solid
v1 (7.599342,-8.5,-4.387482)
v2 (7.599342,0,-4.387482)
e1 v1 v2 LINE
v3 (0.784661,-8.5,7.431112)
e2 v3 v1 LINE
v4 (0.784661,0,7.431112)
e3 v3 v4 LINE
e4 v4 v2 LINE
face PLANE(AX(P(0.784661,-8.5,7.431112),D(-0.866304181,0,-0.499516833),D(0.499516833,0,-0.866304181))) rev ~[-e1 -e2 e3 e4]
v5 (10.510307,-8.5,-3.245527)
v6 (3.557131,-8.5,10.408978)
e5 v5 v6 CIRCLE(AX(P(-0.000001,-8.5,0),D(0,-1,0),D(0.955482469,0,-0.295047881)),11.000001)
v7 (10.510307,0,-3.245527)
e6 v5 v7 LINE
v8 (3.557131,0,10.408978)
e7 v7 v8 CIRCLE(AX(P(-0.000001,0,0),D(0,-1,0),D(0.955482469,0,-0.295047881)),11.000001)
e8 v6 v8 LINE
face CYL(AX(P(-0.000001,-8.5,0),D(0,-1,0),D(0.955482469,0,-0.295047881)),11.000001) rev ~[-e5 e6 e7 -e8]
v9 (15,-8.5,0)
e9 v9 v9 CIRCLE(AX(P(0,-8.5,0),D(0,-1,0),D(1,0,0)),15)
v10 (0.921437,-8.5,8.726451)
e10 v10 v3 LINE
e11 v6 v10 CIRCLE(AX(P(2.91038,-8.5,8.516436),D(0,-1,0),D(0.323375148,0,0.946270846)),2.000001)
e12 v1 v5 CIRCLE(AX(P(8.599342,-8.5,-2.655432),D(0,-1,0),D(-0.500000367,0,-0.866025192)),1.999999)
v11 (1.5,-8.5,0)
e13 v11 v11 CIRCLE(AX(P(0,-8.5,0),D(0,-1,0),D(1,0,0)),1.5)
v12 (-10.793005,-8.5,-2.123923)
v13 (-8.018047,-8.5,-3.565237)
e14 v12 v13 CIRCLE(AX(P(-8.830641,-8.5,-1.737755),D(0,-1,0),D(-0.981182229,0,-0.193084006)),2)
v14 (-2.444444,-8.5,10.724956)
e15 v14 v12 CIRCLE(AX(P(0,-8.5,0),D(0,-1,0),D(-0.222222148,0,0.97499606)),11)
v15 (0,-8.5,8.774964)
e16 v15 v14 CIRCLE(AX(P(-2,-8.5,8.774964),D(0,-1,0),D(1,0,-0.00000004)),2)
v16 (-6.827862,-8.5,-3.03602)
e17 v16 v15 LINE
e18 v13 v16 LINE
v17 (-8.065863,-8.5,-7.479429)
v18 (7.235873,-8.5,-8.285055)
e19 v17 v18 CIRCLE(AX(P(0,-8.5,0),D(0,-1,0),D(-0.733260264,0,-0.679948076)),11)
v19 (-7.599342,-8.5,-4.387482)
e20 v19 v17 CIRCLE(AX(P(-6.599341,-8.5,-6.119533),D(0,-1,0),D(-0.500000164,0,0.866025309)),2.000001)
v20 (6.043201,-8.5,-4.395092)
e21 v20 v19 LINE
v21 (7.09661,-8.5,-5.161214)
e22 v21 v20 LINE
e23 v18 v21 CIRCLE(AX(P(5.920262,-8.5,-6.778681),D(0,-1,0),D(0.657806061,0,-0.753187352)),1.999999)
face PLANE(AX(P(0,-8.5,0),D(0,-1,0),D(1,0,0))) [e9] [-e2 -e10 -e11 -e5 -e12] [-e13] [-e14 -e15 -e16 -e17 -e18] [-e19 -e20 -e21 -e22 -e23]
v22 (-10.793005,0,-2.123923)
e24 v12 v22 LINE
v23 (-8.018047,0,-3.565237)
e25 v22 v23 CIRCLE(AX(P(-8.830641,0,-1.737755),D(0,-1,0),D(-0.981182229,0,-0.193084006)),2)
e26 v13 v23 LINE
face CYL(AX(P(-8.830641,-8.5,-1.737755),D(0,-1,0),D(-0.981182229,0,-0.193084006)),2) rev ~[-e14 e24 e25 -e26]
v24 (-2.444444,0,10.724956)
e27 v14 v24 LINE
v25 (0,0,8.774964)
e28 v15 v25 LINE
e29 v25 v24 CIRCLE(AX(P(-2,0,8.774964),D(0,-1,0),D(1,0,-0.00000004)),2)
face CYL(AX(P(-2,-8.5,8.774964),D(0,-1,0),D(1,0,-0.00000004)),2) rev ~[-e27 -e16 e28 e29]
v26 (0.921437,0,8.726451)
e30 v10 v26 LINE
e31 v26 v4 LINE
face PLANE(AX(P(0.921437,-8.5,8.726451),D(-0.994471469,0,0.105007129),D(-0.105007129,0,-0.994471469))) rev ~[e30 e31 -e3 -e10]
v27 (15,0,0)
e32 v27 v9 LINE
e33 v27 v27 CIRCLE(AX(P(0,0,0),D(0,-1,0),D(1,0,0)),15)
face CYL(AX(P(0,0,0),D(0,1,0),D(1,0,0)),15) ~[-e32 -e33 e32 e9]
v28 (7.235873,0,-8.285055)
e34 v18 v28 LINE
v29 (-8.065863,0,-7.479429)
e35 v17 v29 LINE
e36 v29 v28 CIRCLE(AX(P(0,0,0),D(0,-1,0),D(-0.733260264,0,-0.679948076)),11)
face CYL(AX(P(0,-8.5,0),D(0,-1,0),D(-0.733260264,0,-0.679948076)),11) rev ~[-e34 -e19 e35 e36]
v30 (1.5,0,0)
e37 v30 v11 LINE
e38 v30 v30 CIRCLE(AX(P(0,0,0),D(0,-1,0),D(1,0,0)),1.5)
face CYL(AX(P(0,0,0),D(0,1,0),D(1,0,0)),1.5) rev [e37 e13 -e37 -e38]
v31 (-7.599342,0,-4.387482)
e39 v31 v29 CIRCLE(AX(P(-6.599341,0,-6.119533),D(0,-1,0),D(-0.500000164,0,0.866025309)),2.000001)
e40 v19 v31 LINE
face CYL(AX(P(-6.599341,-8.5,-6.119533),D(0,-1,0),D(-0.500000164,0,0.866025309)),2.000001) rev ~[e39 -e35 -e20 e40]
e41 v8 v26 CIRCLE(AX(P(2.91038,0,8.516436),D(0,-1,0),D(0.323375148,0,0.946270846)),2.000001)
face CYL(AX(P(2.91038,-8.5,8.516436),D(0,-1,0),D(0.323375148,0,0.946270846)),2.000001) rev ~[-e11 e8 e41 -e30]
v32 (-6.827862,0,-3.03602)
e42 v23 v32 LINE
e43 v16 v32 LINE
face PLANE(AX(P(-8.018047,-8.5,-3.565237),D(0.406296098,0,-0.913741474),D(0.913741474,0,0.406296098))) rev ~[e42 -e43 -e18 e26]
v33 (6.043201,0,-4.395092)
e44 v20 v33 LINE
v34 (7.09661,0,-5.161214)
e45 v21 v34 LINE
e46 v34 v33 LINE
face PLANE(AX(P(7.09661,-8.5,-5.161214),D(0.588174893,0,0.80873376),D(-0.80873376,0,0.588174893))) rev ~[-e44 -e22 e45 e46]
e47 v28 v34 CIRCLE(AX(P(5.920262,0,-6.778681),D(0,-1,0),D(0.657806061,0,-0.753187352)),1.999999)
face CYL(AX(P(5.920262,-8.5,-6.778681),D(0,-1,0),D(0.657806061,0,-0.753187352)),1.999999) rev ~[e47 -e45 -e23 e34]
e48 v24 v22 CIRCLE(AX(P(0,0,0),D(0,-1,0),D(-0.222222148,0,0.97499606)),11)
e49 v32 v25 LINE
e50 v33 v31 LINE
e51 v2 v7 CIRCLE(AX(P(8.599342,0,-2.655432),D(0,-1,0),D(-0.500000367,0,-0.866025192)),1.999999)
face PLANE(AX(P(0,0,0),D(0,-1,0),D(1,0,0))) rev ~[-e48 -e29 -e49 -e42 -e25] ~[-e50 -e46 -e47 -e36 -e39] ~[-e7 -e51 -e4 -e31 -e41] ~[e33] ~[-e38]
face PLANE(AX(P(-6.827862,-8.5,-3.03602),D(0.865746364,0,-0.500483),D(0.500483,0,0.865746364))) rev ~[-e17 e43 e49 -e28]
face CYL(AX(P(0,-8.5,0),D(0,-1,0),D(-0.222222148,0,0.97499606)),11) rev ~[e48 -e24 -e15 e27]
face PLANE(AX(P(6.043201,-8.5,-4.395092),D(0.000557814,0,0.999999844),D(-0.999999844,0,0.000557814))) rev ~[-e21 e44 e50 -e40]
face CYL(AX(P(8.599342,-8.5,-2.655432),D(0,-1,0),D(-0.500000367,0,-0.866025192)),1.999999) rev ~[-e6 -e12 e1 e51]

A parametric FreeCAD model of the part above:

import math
import FreeCAD as App
import Part
import Sketcher
from FreeCAD import Vector

doc = App.newDocument("Part")
params = doc.addObject("Spreadsheet::Sheet", "Params")
for row, (alias, value) in enumerate([
    ("sketch1_diameter", "30 mm"),
    ("sketch1_diameter2", "3 mm"),
    ("pad1_length", "8.5 mm"),
    ("sketch2_radius", "2 mm"),
    ("sketch2_radius2", "11 mm"),
], start=1):
    params.set(f"A{row}", alias)
    params.set(f"B{row}", "=" + value)
    params.setAlias(f"B{row}", alias)

body = doc.addObject("PartDesign::Body", "Body")

# Sketch on XZ plane
sketch1 = doc.addObject("Sketcher::SketchObject", "Sketch")
body.addObject(sketch1)
sketch1.AttachmentSupport = (doc.XZ_Plane, [""])
sketch1.MapMode = "FlatFace"
sketch1.addGeometry(Part.Circle(Vector(0, 0, 0), Vector(0, 0, 1), 15), False)
sketch1.addGeometry(Part.Circle(Vector(0, 0, 0), Vector(0, 0, 1), 1.5), False)
sketch1.addConstraint(Sketcher.Constraint("Coincident", 0, 3, -1, 1))
sketch1.addConstraint(Sketcher.Constraint("Coincident", 1, 3, -1, 1))
sketch1.addConstraint(Sketcher.Constraint("Diameter", 0, 30.0))
sketch1.addConstraint(Sketcher.Constraint("Diameter", 1, 3.0))
sketch1.setExpression("Constraints[2]", "Params.sketch1_diameter")
sketch1.setExpression("Constraints[3]", "Params.sketch1_diameter2")
pad1 = doc.addObject("PartDesign::Pad", "Pad")
body.addObject(pad1)
pad1.Profile = sketch1
pad1.setExpression("Length", "Params.pad1_length")

# Sketch on XZ plane
sketch2 = doc.addObject("Sketcher::SketchObject", "Sketch001")
body.addObject(sketch2)
sketch2.AttachmentSupport = (doc.XZ_Plane, [""])
sketch2.MapMode = "FlatFace"
sketch2.AttachmentOffset = App.Placement(Vector(0, 0, 8.5), App.Rotation())
sketch2.addGeometry(Part.LineSegment(Vector(-8, -3.6, 0), Vector(-6.8, -3, 0)), False)
sketch2.addGeometry(Part.LineSegment(Vector(-6.8, -3, 0), Vector(0, 8.8, 0)), False)
sketch2.addGeometry(Part.ArcOfCircle(Part.Circle(Vector(-2, 8.8, 0), Vector(0, 0, 1), 2), math.radians(0), math.radians(103)), False)
sketch2.addGeometry(Part.ArcOfCircle(Part.Circle(Vector(0, 0, 0), Vector(0, 0, 1), 11), math.radians(103), math.radians(191)), False)
sketch2.addGeometry(Part.ArcOfCircle(Part.Circle(Vector(-8.8, -1.7, 0), Vector(0, 0, 1), 2), math.radians(-169), math.radians(-66)), False)
sketch2.addGeometry(Part.LineSegment(Vector(0.8, 7.4, 0), Vector(7.6, -4.4, 0)), False)
sketch2.addGeometry(Part.ArcOfCircle(Part.Circle(Vector(8.6, -2.7, 0), Vector(0, 0, 1), 2), math.radians(-120), math.radians(-17)), False)
sketch2.addGeometry(Part.ArcOfCircle(Part.Circle(Vector(0, 0, 0), Vector(0, 0, 1), 11), math.radians(-17), math.radians(71)), False)
sketch2.addGeometry(Part.ArcOfCircle(Part.Circle(Vector(2.9, 8.5, 0), Vector(0, 0, 1), 2), math.radians(71), math.radians(174)), False)
sketch2.addGeometry(Part.LineSegment(Vector(0.9, 8.7, 0), Vector(0.8, 7.4, 0)), False)
sketch2.addGeometry(Part.LineSegment(Vector(6, -4.4, 0), Vector(-7.6, -4.4, 0)), False)
sketch2.addGeometry(Part.ArcOfCircle(Part.Circle(Vector(-6.6, -6.1, 0), Vector(0, 0, 1), 2), math.radians(120), math.radians(223)), False)
sketch2.addGeometry(Part.ArcOfCircle(Part.Circle(Vector(0, 0, 0), Vector(0, 0, 1), 11), math.radians(-137), math.radians(-49)), False)
sketch2.addGeometry(Part.ArcOfCircle(Part.Circle(Vector(5.9, -6.8, 0), Vector(0, 0, 1), 2), math.radians(-49), math.radians(54)), False)
sketch2.addGeometry(Part.LineSegment(Vector(7.1, -5.2, 0), Vector(6, -4.4, 0)), False)
sketch2.addConstraint(Sketcher.Constraint("Coincident", 0, 2, 1, 1))
sketch2.addConstraint(Sketcher.Constraint("Coincident", 1, 2, 2, 1))
sketch2.addConstraint(Sketcher.Constraint("Tangent", 2, 2, 3, 1))
sketch2.addConstraint(Sketcher.Constraint("Tangent", 3, 2, 4, 1))
sketch2.addConstraint(Sketcher.Constraint("Tangent", 4, 2, 0, 1))
sketch2.addConstraint(Sketcher.Constraint("Coincident", 5, 2, 6, 1))
sketch2.addConstraint(Sketcher.Constraint("Tangent", 6, 2, 7, 1))
sketch2.addConstraint(Sketcher.Constraint("Tangent", 7, 2, 8, 1))
sketch2.addConstraint(Sketcher.Constraint("Tangent", 8, 2, 9, 1))
sketch2.addConstraint(Sketcher.Constraint("Coincident", 9, 2, 5, 1))
sketch2.addConstraint(Sketcher.Constraint("Coincident", 10, 2, 11, 1))
sketch2.addConstraint(Sketcher.Constraint("Tangent", 11, 2, 12, 1))
sketch2.addConstraint(Sketcher.Constraint("Tangent", 12, 2, 13, 1))
sketch2.addConstraint(Sketcher.Constraint("Tangent", 13, 2, 14, 1))
sketch2.addConstraint(Sketcher.Constraint("Coincident", 14, 2, 10, 1))
sketch2.addConstraint(Sketcher.Constraint("Coincident", 3, 3, -1, 1))
sketch2.addConstraint(Sketcher.Constraint("Coincident", 7, 3, -1, 1))
sketch2.addConstraint(Sketcher.Constraint("Coincident", 12, 3, -1, 1))
sketch2.addConstraint(Sketcher.Constraint("Equal", 2, 4))
sketch2.addConstraint(Sketcher.Constraint("Equal", 4, 6))
sketch2.addConstraint(Sketcher.Constraint("Equal", 3, 7))
sketch2.addConstraint(Sketcher.Constraint("Equal", 6, 8))
sketch2.addConstraint(Sketcher.Constraint("Equal", 8, 11))
sketch2.addConstraint(Sketcher.Constraint("Equal", 7, 12))
sketch2.addConstraint(Sketcher.Constraint("Equal", 11, 13))
sketch2.addConstraint(Sketcher.Constraint("Symmetric", 5, 2, 10, 2, -2))
sketch2.addConstraint(Sketcher.Constraint("PointOnObject", 1, 2, -2))
sketch2.addConstraint(Sketcher.Constraint("Horizontal", 2, 3, 1, 2))
sketch2.addConstraint(Sketcher.Constraint("Equal", 1, 5))
sketch2.addConstraint(Sketcher.Constraint("Equal", 0, 9))
sketch2.addConstraint(Sketcher.Constraint("Equal", 5, 10))
sketch2.addConstraint(Sketcher.Constraint("Equal", 9, 14))
sketch2.addConstraint(Sketcher.Constraint("Radius", 2, 2.0))
sketch2.addConstraint(Sketcher.Constraint("Radius", 3, 11.0))
sketch2.addConstraint(Sketcher.Constraint("DistanceX", 5, 2, 6, 3, 1.0))
sketch2.addConstraint(Sketcher.Constraint("DistanceX", 10, 2, 11, 3, 1.000001))
sketch2.addConstraint(Sketcher.Constraint("DistanceX", 11, 2, 0, 2, 1.238001))
sketch2.addConstraint(Sketcher.Constraint("DistanceX", -1, 1, 14, 2, 6.043201))
sketch2.addConstraint(Sketcher.Constraint("DistanceX", 4, 3, 11, 3, 2.231299))
sketch2.addConstraint(Sketcher.Constraint("DistanceY", 13, 3, 5, 2, 2.391199))
sketch2.addConstraint(Sketcher.Constraint("DistanceX", -1, 1, 8, 3, 2.91038))
sketch2.setExpression("Constraints[32]", "Params.sketch2_radius")
sketch2.setExpression("Constraints[33]", "Params.sketch2_radius2")
pocket1 = doc.addObject("PartDesign::Pocket", "Pocket")
body.addObject(pocket1)
pocket1.Profile = sketch2
pocket1.Type = "ThroughAll"

doc.recompute()
